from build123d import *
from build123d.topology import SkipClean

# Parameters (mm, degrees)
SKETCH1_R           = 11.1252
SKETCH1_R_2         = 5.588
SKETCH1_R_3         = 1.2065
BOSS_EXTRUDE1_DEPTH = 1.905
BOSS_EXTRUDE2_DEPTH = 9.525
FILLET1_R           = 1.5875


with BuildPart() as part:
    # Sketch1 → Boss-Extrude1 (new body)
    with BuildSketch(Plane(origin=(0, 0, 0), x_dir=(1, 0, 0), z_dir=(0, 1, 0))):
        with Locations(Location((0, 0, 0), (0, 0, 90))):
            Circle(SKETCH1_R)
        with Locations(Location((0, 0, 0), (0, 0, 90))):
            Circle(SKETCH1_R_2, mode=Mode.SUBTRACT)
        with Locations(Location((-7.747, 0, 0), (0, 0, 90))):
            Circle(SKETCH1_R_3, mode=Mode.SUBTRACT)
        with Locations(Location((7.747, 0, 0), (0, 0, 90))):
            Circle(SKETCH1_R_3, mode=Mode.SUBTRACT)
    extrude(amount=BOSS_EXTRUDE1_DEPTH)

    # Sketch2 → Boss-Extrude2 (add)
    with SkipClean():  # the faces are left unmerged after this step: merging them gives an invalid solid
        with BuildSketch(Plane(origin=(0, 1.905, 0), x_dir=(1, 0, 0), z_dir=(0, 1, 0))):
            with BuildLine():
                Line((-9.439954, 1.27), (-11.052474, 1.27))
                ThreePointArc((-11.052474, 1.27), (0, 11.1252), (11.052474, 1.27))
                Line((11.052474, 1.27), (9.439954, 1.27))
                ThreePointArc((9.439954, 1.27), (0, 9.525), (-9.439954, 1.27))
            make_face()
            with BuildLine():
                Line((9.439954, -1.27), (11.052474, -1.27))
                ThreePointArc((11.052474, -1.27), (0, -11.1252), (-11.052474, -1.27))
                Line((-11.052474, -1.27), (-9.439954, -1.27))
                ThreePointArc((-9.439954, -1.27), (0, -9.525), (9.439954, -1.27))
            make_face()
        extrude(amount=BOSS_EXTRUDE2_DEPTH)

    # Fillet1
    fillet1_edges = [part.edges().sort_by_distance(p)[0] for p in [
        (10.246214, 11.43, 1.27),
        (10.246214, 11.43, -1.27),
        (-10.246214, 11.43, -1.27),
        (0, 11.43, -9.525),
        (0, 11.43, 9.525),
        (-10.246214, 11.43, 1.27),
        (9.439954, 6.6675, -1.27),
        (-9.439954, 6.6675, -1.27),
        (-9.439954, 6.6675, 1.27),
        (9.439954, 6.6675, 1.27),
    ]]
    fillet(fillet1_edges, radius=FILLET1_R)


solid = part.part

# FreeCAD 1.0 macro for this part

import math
import FreeCAD as App
import Part
import Sketcher

V = App.Vector
Q = App.Units.Quantity


def edges_at(feature, points):
    """Names of the edges that pass closest to the given points."""
    edges = feature.Shape.Edges
    near = lambda p: min(range(len(edges)), key=lambda i: edges[i].distToShape(Part.Vertex(*p))[0])
    return sorted({f"Edge{near(p) + 1}" for p in points})

doc = App.newDocument("Part")
params = doc.addObject("Spreadsheet::Sheet", "Params")
for row, (alias, value) in enumerate([
    ("sketch1_diameter", "0.44 in"),
    ("sketch1_diameter2", "0.876 in"),
    ("sketch1_diameter3", "0.095 in"),
    ("pad1_length", "0.075 in"),
    ("sketch2_radius", "0.375 in"),
    ("sketch2_radius2", "0.438 in"),
    ("pad2_length", "0.375 in"),
    ("fillet_radius", "0.0625 in"),
], start=1):
    params.set(f"A{row}", alias)
    params.set(f"B{row}", "=" + value)
    params.setAlias(f"B{row}", alias)

body = doc.addObject("PartDesign::Body", "Body")

sketch1 = doc.addObject("Sketcher::SketchObject", "Sketch")
body.addObject(sketch1)
sketch1.AttachmentSupport = (doc.XZ_Plane, [""])
sketch1.MapMode = "FlatFace"
sketch1.addGeometry([
    Part.Circle(V(0, 0, 0), V(0, 0, 1), 11.1252),
    Part.Circle(V(7.747, 0, 0), V(0, 0, 1), 1.2065),
    Part.Circle(V(-7.747, 0, 0), V(0, 0, 1), 1.2065),
    Part.Circle(V(0, 0, 0), V(0, 0, 1), 5.588),
], False)
sketch1.addConstraint([
    Sketcher.Constraint("Coincident", 0, 3, -1, 1),
    Sketcher.Constraint("Coincident", 3, 3, -1, 1),
    Sketcher.Constraint("Equal", 1, 2),
    Sketcher.Constraint("Symmetric", 1, 3, 2, 3, -1, 1),
    Sketcher.Constraint("PointOnObject", 1, 3, -1),
    Sketcher.Constraint("Diameter", 3, Q("0.44 in")),
    Sketcher.Constraint("Diameter", 0, Q("0.876 in")),
    Sketcher.Constraint("Diameter", 1, Q("0.095 in")),
    Sketcher.Constraint("DistanceX", 2, 3, 1, 3, Q("0.61 in")),
])
sketch1.setExpression("Constraints[5]", "Params.sketch1_diameter")
sketch1.setExpression("Constraints[6]", "Params.sketch1_diameter2")
sketch1.setExpression("Constraints[7]", "Params.sketch1_diameter3")
pad1 = doc.addObject("PartDesign::Pad", "Pad")
body.addObject(pad1)
pad1.Profile = sketch1
pad1.setExpression("Length", "Params.pad1_length")
pad1.Reversed = True

sketch2 = doc.addObject("Sketcher::SketchObject", "Sketch001")
body.addObject(sketch2)
sketch2.AttachmentSupport = (doc.XZ_Plane, [""])
sketch2.MapMode = "FlatFace"
sketch2.AttachmentOffset = App.Placement(V(0, 0, -0.075 * 25.4), App.Rotation())
sketch2.addGeometry([
    Part.LineSegment(V(-11.052474, -1.27, 0), V(-9.439954, -1.27, 0)),
    Part.ArcOfCircle(Part.Circle(V(0, 0, 0), V(0, 0, 1), 9.525), math.radians(-172.337742), math.radians(-7.662258)),
    Part.LineSegment(V(9.439954, -1.27, 0), V(11.052474, -1.27, 0)),
    Part.ArcOfCircle(Part.Circle(V(0, 0, 0), V(0, 0, 1), 11.1252), math.radians(-173.445095), math.radians(-6.554905)),
    Part.LineSegment(V(11.052474, 1.27, 0), V(9.439954, 1.27, 0)),
    Part.ArcOfCircle(Part.Circle(V(0, 0, 0), V(0, 0, 1), 9.525), math.radians(7.662258), math.radians(172.337742)),
    Part.LineSegment(V(-9.439954, 1.27, 0), V(-11.052474, 1.27, 0)),
    Part.ArcOfCircle(Part.Circle(V(0, 0, 0), V(0, 0, 1), 11.1252), math.radians(6.554905), math.radians(173.445095)),
], False)
sketch2.addConstraint([
    Sketcher.Constraint("Coincident", 0, 2, 1, 1),
    Sketcher.Constraint("Coincident", 1, 2, 2, 1),
    Sketcher.Constraint("Coincident", 2, 2, 3, 2),
    Sketcher.Constraint("Coincident", 3, 1, 0, 1),
    Sketcher.Constraint("Coincident", 4, 2, 5, 1),
    Sketcher.Constraint("Coincident", 5, 2, 6, 1),
    Sketcher.Constraint("Coincident", 6, 2, 7, 2),
    Sketcher.Constraint("Coincident", 7, 1, 4, 1),
    Sketcher.Constraint("Horizontal", 0),
    Sketcher.Constraint("Horizontal", 2),
    Sketcher.Constraint("Horizontal", 4),
    Sketcher.Constraint("Horizontal", 6),
    Sketcher.Constraint("Coincident", 1, 3, -1, 1),
    Sketcher.Constraint("Coincident", 3, 3, -1, 1),
    Sketcher.Constraint("Coincident", 5, 3, -1, 1),
    Sketcher.Constraint("Coincident", 7, 3, -1, 1),
    Sketcher.Constraint("Equal", 1, 5),
    Sketcher.Constraint("Equal", 3, 7),
    Sketcher.Constraint("Horizontal", 0, 2, 1, 2),
    Sketcher.Constraint("Horizontal", 4, 2, 5, 2),
    Sketcher.Constraint("Vertical", 1, 2, 4, 2),
    Sketcher.Constraint("Radius", 1, Q("0.375 in")),
    Sketcher.Constraint("Radius", 3, Q("0.438 in")),
    Sketcher.Constraint("DistanceY", 1, 2, 4, 2, Q("0.1 in")),
])
sketch2.setExpression("Constraints[21]", "Params.sketch2_radius")
sketch2.setExpression("Constraints[22]", "Params.sketch2_radius2")
pad2 = doc.addObject("PartDesign::Pad", "Pad001")
body.addObject(pad2)
pad2.Profile = sketch2
pad2.setExpression("Length", "Params.pad2_length")
pad2.Reversed = True
doc.recompute()

fillet = doc.addObject("PartDesign::Fillet", "Fillet")
body.addObject(fillet)
fillet.Base = (pad2, edges_at(pad2, [
    (10.246, 11.43, 1.27),
    (10.246, 11.43, -1.27),
    (-10.246, 11.43, -1.27),
    (0, 11.43, -9.525),
    (0, 11.43, 9.525),
    (-10.246, 11.43, 1.27),
    (9.44, 6.668, -1.27),
    (-9.44, 6.668, -1.27),
    (-9.44, 6.668, 1.27),
    (9.44, 6.668, 1.27),
]))
fillet.setExpression("Radius", "Params.fillet_radius")

doc.recompute()
